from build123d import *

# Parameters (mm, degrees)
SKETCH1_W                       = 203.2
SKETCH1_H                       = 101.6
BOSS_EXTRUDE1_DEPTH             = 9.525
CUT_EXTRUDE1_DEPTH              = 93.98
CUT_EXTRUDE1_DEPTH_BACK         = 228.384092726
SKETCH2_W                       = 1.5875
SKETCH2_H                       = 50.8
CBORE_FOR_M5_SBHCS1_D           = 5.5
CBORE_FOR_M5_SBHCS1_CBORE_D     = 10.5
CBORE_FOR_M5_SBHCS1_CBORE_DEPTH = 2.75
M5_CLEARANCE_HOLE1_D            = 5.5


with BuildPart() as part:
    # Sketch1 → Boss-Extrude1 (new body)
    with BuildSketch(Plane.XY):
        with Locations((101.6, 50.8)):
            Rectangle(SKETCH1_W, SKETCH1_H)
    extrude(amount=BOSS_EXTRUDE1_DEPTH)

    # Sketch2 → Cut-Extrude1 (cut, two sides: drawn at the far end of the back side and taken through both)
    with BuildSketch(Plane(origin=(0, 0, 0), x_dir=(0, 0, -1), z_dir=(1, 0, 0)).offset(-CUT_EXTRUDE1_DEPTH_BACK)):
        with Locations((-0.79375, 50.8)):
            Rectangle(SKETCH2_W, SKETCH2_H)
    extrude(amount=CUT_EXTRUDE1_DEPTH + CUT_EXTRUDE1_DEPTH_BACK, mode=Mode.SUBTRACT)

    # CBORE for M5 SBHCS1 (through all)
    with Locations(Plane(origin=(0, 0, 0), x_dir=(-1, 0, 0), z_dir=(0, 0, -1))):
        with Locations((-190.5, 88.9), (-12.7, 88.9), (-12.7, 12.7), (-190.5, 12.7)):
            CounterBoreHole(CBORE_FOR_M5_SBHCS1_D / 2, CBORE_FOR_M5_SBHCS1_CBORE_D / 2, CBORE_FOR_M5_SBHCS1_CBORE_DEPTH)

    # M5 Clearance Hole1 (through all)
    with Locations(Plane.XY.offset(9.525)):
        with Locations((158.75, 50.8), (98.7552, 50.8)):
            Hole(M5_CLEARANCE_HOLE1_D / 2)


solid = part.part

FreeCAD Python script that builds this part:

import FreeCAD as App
import Part
import Sketcher

V = App.Vector
Q = App.Units.Quantity

doc = App.newDocument("Part")
body = doc.addObject("PartDesign::Body", "Body")

sketch1 = body.newObject("Sketcher::SketchObject", "Sketch")
sketch1.AttachmentSupport = (doc.getObject("XY_Plane"), [""])
sketch1.MapMode = "FlatFace"
sketch1.addGeometry(Part.LineSegment(V(0, 102, 0), V(0, 0, 0)), False)
sketch1.addGeometry(Part.LineSegment(V(0, 0, 0), V(203, 0, 0)), False)
sketch1.addGeometry(Part.LineSegment(V(203, 0, 0), V(203, 102, 0)), False)
sketch1.addGeometry(Part.LineSegment(V(203, 102, 0), V(0, 102, 0)), False)
sketch1.addConstraint(Sketcher.Constraint("Coincident", 0, 2, 1, 1))
sketch1.addConstraint(Sketcher.Constraint("Coincident", 1, 2, 2, 1))
sketch1.addConstraint(Sketcher.Constraint("Coincident", 2, 2, 3, 1))
sketch1.addConstraint(Sketcher.Constraint("Coincident", 3, 2, 0, 1))
sketch1.addConstraint(Sketcher.Constraint("Vertical", 0))
sketch1.addConstraint(Sketcher.Constraint("Horizontal", 1))
sketch1.addConstraint(Sketcher.Constraint("Vertical", 2))
sketch1.addConstraint(Sketcher.Constraint("Horizontal", 3))
sketch1.addConstraint(Sketcher.Constraint("Coincident", 0, 2, -1, 1))
sketch1.addConstraint(Sketcher.Constraint("DistanceX", 1, 1, 1, 2, Q("8 in")))
sketch1.addConstraint(Sketcher.Constraint("DistanceY", 0, 2, 0, 1, Q("4 in")))
pad1 = body.newObject("PartDesign::Pad", "Pad")
pad1.Profile = sketch1
pad1.Length = Q("0.375 in")

sketch2 = body.newObject("Sketcher::SketchObject", "Sketch001")
sketch2.AttachmentSupport = (doc.getObject("YZ_Plane"), [""])
sketch2.MapMode = "FlatFace"
sketch2.addGeometry(Part.LineSegment(V(76.2, 1.6, 0), V(25.4, 1.6, 0)), False)
sketch2.addGeometry(Part.LineSegment(V(25.4, 1.6, 0), V(25.4, 0, 0)), False)
sketch2.addGeometry(Part.LineSegment(V(25.4, 0, 0), V(76.2, 0, 0)), False)
sketch2.addGeometry(Part.LineSegment(V(76.2, 0, 0), V(76.2, 1.6, 0)), False)
sketch2.addConstraint(Sketcher.Constraint("Coincident", 0, 2, 1, 1))
sketch2.addConstraint(Sketcher.Constraint("Coincident", 1, 2, 2, 1))
sketch2.addConstraint(Sketcher.Constraint("Coincident", 2, 2, 3, 1))
sketch2.addConstraint(Sketcher.Constraint("Coincident", 3, 2, 0, 1))
sketch2.addConstraint(Sketcher.Constraint("Horizontal", 0))
sketch2.addConstraint(Sketcher.Constraint("Vertical", 1))
sketch2.addConstraint(Sketcher.Constraint("Horizontal", 2))
sketch2.addConstraint(Sketcher.Constraint("Vertical", 3))
sketch2.addConstraint(Sketcher.Constraint("PointOnObject", 1, 2, -1))
sketch2.addConstraint(Sketcher.Constraint("DistanceX", 0, 2, 0, 1, Q("2 in")))
sketch2.addConstraint(Sketcher.Constraint("DistanceX", -1, 1, 0, 2, Q("1 in")))
sketch2.addConstraint(Sketcher.Constraint("DistanceY", 1, 2, 1, 1, Q("0.0625 in")))
pocket1 = body.newObject("PartDesign::Pocket", "Pocket")
pocket1.Profile = sketch2
pocket1.Type = "TwoLengths"
pocket1.Length = Q("3.7 in")
pocket1.Length2 = 228.384093
pocket1.Reversed = True

sketch3 = body.newObject("Sketcher::SketchObject", "Sketch002")
sketch3.AttachmentSupport = (doc.getObject("XY_Plane"), [""])
sketch3.MapMode = "FlatFace"
sketch3.addGeometry(Part.Circle(V(190.5, 88.9, 0), V(0, 0, 1), 2.8), False)
sketch3.addGeometry(Part.Circle(V(12.7, 88.9, 0), V(0, 0, 1), 2.8), False)
sketch3.addGeometry(Part.Circle(V(12.7, 12.7, 0), V(0, 0, 1), 2.8), False)
sketch3.addGeometry(Part.Circle(V(190.5, 12.7, 0), V(0, 0, 1), 2.8), False)
sketch3.addConstraint(Sketcher.Constraint("Equal", 0, 1))
sketch3.addConstraint(Sketcher.Constraint("Equal", 1, 2))
sketch3.addConstraint(Sketcher.Constraint("Equal", 2, 3))
sketch3.addConstraint(Sketcher.Constraint("Horizontal", 0, 3, 1, 3))
sketch3.addConstraint(Sketcher.Constraint("Horizontal", 2, 3, 3, 3))
sketch3.addConstraint(Sketcher.Constraint("Vertical", 1, 3, 2, 3))
sketch3.addConstraint(Sketcher.Constraint("Vertical", 0, 3, 3, 3))
sketch3.addConstraint(Sketcher.Constraint("DistanceX", 1, 3, 0, 3, Q("7 in")))
sketch3.addConstraint(Sketcher.Constraint("DistanceY", 2, 3, 1, 3, Q("3 in")))
sketch3.addConstraint(Sketcher.Constraint("DistanceX", -1, 1, 0, 3, Q("7.5 in")))
sketch3.addConstraint(Sketcher.Constraint("DistanceY", -1, 1, 0, 3, Q("3.5 in")))
sketch3.addConstraint(Sketcher.Constraint("Diameter", 0, Q("5.5 mm")))
doc.recompute()
hole = body.newObject("PartDesign::Hole", "Hole")
hole.Profile = sketch3
hole.ThreadType = "None"
hole.Diameter = 5.5
hole.DepthType = "ThroughAll"
hole.HoleCutType = "Counterbore"
hole.HoleCutDiameter = 10.5
hole.HoleCutDepth = 2.75
hole.Reversed = True

sketch4 = body.newObject("Sketcher::SketchObject", "Sketch003")
sketch4.AttachmentSupport = (doc.getObject("XY_Plane"), [""])
sketch4.MapMode = "FlatFace"
sketch4.AttachmentOffset = App.Placement(V(0, 0, 0.375 * 25.4), App.Rotation())
sketch4.addGeometry(Part.Circle(V(158.8, 50.8, 0), V(0, 0, 1), 2.8), False)
sketch4.addGeometry(Part.Circle(V(98.8, 50.8, 0), V(0, 0, 1), 2.8), False)
sketch4.addConstraint(Sketcher.Constraint("Equal", 0, 1))
sketch4.addConstraint(Sketcher.Constraint("Horizontal", 0, 3, 1, 3))
sketch4.addConstraint(Sketcher.Constraint("DistanceY", -1, 1, 0, 3, Q("2 in")))
sketch4.addConstraint(Sketcher.Constraint("Diameter", 0, Q("5.5 mm")))
sketch4.addConstraint(Sketcher.Constraint("DistanceX", -1, 1, 0, 3, Q("6.25 in")))
sketch4.addConstraint(Sketcher.Constraint("DistanceX", -1, 1, 1, 3, Q("3.888 in")))
doc.recompute()
hole2 = body.newObject("PartDesign::Hole", "Hole001")
hole2.Profile = sketch4
hole2.ThreadType = "None"
hole2.Diameter = 5.5
hole2.DepthType = "ThroughAll"

doc.recompute()
